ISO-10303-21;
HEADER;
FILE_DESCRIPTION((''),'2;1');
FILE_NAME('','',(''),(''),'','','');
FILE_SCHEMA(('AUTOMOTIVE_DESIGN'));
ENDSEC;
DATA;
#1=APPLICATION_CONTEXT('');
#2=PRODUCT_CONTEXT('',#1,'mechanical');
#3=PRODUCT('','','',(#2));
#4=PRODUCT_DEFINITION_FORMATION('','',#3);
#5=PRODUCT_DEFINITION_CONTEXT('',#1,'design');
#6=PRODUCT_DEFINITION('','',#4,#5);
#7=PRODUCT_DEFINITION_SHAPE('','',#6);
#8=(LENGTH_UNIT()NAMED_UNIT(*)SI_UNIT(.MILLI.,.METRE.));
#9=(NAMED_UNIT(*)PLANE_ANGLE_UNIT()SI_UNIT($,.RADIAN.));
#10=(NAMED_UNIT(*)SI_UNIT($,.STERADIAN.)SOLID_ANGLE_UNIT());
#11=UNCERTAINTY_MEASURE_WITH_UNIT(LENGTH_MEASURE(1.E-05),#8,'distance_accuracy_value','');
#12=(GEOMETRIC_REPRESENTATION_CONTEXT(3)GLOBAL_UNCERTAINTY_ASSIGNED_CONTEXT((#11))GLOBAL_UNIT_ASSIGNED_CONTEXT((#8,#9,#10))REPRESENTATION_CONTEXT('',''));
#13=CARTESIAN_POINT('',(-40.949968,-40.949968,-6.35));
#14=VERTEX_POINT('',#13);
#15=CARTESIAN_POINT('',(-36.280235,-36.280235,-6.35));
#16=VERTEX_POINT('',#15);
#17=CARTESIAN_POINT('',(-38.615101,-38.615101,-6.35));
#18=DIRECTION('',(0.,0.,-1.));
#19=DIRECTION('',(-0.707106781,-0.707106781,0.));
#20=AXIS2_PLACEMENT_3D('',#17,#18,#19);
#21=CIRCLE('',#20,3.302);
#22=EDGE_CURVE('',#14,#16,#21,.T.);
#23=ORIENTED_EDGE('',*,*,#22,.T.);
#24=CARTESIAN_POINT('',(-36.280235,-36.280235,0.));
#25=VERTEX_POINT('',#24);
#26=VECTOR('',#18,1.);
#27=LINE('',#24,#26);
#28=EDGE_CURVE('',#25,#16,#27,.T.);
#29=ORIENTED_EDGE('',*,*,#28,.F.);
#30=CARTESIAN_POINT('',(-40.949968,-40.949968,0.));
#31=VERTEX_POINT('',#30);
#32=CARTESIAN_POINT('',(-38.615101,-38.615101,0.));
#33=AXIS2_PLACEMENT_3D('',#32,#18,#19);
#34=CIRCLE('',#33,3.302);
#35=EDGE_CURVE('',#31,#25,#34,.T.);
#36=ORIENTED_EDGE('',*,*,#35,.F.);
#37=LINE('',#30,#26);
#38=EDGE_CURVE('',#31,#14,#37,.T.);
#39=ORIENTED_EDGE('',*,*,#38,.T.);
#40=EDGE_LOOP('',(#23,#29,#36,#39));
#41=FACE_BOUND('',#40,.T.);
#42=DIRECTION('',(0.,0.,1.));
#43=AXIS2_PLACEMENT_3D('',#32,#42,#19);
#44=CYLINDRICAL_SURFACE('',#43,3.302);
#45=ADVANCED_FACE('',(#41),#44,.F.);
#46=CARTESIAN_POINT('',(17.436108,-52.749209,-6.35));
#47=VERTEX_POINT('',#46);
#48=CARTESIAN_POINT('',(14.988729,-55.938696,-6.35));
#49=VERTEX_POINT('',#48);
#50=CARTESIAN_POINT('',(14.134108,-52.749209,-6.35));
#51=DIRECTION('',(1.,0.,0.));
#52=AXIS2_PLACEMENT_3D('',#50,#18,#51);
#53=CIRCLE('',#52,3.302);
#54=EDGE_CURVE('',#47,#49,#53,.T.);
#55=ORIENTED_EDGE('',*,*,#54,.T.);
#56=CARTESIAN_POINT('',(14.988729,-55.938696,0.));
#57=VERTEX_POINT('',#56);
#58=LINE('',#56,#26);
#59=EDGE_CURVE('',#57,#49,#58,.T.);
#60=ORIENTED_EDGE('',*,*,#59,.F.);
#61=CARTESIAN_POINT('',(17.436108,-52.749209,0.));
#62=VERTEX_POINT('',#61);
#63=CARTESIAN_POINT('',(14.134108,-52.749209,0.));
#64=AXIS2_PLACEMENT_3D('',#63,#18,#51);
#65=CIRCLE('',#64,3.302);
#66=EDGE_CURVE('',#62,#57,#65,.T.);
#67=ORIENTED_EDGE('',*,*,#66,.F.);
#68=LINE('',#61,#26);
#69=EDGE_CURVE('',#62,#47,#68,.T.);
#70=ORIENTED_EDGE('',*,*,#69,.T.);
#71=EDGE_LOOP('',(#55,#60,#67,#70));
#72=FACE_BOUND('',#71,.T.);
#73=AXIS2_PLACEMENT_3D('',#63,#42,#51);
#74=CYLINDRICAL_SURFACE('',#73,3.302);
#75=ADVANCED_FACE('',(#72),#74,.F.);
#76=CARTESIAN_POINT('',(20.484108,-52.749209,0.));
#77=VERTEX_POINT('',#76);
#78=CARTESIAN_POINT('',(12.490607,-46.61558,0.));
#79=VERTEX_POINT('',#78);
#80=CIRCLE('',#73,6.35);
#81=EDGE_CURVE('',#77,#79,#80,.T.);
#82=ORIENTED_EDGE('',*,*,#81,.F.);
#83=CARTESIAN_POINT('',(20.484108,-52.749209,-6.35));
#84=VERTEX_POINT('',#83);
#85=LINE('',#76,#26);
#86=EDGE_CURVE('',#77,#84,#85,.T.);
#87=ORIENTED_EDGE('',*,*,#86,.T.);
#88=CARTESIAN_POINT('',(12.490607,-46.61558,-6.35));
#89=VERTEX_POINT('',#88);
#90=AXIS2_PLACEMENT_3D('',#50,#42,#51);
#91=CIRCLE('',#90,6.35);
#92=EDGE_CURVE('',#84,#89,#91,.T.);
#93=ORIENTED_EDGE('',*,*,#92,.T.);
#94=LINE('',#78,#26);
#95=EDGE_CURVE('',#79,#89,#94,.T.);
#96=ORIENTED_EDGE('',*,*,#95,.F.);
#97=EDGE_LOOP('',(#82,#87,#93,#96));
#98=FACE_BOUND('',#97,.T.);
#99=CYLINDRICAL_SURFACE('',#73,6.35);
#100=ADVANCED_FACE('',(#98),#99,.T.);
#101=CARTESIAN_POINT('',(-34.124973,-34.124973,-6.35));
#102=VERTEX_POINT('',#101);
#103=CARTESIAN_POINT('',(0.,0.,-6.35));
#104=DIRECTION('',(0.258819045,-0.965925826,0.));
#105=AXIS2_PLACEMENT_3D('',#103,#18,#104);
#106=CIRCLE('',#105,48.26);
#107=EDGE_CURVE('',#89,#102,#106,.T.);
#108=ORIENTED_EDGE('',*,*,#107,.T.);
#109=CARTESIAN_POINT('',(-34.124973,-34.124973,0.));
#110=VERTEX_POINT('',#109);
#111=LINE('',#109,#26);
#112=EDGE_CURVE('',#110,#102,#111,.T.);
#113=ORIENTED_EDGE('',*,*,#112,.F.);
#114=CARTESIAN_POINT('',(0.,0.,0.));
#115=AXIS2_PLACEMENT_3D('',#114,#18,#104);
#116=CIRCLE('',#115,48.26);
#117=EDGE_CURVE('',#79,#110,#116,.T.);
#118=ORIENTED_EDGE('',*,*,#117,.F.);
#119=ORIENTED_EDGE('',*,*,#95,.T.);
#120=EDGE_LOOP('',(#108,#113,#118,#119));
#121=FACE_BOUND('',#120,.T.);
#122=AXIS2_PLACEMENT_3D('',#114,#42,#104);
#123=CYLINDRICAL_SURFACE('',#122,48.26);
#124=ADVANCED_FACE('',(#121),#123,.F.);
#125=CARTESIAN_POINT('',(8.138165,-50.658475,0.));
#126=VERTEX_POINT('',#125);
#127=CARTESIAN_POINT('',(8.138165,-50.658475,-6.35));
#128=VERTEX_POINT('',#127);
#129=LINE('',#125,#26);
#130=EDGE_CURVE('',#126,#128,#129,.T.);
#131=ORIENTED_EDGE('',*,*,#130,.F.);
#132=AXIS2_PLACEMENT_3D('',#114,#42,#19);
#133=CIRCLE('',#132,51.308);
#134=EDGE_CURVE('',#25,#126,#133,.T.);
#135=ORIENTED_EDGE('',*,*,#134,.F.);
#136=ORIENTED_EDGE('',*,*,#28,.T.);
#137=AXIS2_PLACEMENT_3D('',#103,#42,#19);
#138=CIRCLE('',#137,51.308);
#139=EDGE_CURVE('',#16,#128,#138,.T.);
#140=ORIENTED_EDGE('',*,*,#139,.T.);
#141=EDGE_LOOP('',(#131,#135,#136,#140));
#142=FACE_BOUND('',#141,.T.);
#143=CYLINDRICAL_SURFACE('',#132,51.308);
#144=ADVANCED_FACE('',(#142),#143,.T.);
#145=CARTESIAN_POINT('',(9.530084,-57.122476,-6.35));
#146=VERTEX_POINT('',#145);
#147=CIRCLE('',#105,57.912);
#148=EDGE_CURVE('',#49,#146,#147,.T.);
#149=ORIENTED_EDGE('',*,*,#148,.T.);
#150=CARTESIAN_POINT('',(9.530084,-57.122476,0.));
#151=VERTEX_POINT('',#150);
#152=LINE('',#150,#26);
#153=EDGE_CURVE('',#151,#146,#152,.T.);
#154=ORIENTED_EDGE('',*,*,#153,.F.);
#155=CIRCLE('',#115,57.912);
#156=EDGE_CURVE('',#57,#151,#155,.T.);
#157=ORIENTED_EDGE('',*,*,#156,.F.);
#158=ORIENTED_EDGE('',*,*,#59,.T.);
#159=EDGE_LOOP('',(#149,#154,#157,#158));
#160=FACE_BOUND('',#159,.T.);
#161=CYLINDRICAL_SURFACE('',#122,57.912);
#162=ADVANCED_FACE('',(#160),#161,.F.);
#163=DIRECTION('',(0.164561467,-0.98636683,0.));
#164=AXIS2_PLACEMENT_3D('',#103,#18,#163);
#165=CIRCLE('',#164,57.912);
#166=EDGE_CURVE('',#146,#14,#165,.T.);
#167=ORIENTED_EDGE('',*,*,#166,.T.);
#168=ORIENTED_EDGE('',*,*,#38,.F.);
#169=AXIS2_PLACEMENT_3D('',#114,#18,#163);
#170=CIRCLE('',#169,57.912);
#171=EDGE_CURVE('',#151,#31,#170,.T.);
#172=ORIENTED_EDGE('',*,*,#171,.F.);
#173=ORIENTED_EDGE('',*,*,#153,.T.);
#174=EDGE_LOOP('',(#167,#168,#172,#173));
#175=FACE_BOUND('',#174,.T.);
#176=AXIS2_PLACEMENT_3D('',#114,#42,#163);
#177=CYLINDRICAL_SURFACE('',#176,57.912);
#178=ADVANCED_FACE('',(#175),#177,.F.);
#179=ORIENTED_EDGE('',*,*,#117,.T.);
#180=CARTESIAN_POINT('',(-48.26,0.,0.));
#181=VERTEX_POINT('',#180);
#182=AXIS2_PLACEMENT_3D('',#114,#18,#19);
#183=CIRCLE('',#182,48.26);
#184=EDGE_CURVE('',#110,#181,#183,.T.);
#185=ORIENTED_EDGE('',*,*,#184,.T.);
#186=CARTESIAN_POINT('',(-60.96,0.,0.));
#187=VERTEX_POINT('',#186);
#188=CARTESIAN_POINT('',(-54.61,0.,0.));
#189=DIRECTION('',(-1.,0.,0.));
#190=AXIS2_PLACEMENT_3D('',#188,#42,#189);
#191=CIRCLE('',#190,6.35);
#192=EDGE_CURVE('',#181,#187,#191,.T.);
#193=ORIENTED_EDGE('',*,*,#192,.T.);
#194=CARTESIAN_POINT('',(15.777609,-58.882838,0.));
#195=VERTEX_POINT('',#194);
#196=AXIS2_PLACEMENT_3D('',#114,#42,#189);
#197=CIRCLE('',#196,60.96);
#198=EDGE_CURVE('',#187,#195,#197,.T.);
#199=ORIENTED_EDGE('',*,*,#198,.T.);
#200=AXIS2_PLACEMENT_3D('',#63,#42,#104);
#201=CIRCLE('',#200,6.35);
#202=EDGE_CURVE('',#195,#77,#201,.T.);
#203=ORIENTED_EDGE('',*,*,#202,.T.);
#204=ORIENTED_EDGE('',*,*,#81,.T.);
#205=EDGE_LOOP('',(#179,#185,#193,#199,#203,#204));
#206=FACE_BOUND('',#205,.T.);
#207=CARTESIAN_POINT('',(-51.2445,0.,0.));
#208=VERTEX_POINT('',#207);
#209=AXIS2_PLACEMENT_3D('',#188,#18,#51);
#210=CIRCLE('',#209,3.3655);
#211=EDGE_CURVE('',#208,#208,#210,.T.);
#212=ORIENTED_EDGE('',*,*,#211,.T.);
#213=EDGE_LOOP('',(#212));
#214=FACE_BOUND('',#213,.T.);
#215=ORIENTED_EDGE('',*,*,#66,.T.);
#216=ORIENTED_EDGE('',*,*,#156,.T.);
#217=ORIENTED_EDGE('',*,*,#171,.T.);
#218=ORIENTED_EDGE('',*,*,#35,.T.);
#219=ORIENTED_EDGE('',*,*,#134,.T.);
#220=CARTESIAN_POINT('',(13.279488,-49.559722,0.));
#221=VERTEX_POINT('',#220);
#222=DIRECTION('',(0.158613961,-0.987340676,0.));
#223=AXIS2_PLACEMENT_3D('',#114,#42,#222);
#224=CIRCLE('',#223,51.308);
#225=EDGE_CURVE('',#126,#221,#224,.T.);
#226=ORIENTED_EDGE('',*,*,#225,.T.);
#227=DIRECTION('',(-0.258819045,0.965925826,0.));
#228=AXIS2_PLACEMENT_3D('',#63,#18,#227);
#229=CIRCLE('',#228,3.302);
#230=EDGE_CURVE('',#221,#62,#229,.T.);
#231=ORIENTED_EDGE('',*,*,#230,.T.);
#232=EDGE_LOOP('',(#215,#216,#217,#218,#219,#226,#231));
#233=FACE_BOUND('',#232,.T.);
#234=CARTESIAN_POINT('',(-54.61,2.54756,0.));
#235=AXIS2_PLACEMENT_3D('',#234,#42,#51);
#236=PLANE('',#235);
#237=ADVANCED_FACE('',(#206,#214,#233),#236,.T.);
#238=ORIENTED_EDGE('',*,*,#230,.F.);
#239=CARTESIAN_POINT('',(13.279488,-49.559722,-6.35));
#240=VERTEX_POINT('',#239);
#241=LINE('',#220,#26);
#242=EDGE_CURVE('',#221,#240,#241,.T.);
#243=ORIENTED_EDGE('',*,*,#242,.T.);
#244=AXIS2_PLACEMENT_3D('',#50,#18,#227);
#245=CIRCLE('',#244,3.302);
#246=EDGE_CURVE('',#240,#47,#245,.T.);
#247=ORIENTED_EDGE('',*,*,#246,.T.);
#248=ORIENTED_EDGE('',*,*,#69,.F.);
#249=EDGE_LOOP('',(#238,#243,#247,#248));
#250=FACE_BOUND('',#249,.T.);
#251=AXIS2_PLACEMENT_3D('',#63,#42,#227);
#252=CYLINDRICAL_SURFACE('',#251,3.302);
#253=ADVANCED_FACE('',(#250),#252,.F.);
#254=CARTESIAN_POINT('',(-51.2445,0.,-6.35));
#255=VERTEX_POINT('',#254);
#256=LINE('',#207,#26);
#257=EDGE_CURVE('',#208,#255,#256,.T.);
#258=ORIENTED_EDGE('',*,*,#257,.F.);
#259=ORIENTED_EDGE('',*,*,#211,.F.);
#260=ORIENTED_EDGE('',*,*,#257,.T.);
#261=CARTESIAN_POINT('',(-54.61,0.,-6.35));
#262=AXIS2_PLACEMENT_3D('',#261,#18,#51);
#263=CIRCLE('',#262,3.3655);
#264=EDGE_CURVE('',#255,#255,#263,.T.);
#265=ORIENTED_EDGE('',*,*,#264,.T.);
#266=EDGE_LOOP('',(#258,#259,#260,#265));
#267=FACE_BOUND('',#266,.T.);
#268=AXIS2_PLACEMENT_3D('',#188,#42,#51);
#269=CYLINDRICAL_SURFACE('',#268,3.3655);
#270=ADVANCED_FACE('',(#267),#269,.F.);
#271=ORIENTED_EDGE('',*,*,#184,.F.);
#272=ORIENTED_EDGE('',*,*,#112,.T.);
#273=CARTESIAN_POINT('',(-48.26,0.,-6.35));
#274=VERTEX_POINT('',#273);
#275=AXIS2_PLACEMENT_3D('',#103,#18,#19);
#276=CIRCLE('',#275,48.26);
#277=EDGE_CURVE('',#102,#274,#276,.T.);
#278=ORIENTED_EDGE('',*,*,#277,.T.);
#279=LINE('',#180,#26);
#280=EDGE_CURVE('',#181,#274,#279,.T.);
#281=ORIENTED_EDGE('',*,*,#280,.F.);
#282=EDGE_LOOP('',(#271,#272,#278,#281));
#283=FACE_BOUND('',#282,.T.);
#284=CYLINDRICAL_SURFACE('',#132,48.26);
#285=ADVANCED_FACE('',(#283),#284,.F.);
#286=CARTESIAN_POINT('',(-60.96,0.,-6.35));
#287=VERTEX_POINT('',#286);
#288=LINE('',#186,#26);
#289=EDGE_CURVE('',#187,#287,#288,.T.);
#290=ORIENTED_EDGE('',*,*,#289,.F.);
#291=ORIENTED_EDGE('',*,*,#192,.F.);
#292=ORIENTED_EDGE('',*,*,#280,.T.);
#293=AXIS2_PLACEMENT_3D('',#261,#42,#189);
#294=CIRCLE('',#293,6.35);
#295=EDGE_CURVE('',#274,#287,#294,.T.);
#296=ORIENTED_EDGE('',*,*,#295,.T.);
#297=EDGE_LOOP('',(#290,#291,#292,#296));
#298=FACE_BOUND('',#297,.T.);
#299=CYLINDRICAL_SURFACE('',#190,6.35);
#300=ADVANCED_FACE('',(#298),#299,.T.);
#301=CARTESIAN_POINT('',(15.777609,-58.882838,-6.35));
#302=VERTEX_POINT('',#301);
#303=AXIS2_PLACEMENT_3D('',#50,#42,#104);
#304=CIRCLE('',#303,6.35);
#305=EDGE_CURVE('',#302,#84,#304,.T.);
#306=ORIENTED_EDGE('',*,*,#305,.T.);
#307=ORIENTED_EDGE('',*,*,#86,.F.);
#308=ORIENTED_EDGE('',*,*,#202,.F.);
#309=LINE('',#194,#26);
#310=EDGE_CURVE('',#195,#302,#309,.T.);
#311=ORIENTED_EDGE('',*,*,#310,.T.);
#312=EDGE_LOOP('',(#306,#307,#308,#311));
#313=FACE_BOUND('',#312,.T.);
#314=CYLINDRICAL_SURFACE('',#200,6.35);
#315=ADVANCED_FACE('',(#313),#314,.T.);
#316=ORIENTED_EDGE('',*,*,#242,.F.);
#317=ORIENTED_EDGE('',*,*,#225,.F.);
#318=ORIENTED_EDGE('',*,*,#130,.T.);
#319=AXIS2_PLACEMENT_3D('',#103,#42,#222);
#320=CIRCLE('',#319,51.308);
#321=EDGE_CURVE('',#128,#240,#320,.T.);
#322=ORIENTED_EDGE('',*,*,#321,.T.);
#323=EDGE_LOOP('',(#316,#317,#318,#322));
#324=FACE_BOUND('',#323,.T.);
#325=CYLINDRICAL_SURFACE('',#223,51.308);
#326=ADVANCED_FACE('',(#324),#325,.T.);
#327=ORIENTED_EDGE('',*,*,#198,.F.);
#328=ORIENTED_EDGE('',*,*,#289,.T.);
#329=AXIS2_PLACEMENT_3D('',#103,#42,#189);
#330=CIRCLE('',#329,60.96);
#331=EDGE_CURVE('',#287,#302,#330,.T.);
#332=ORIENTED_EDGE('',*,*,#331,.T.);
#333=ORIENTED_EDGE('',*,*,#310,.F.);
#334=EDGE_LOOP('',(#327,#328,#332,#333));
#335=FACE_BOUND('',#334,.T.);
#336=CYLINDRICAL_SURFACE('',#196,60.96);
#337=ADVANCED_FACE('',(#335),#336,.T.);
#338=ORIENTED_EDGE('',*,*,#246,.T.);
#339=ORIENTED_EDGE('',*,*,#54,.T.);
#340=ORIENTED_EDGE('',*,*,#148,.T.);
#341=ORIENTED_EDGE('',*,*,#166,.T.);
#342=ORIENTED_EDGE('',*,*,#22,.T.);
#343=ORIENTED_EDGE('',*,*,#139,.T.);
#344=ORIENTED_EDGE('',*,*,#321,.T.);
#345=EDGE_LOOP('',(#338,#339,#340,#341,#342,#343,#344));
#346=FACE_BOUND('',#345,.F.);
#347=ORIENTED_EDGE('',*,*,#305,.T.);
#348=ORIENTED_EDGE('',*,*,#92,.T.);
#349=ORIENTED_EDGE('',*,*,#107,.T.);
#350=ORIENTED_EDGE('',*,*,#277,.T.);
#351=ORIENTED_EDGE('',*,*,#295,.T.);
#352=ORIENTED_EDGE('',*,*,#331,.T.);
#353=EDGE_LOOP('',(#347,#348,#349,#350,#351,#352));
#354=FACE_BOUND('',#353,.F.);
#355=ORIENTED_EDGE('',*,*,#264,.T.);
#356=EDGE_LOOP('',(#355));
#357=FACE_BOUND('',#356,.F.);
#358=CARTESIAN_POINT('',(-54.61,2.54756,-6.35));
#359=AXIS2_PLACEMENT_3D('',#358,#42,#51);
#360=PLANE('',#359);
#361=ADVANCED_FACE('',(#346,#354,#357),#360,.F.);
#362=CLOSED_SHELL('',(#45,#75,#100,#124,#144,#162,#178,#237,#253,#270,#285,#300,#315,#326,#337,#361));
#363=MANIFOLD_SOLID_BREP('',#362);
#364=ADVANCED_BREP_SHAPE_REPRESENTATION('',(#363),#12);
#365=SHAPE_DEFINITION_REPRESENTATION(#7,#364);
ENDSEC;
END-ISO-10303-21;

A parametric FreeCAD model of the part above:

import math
import FreeCAD as App
import Part
import Sketcher

V = App.Vector
Q = App.Units.Quantity

doc = App.newDocument("Part")
body = doc.addObject("PartDesign::Body", "Body")

# Sketch on XY plane
sketch1 = body.newObject("Sketcher::SketchObject", "Sketch")
sketch1.AttachmentSupport = (doc.getObject("XY_Plane"), [""])
sketch1.MapMode = "FlatFace"
sketch1.addGeometry([
    Part.ArcOfCircle(Part.Circle(V(0, 0, 0), V(0, 0, 1), 61), math.radians(180), math.radians(285)),  # 0
    Part.ArcOfCircle(Part.Circle(V(14.1, -52.7, 0), V(0, 0, 1), 6.3), math.radians(-75), math.radians(0)),  # 1
    Part.ArcOfCircle(Part.Circle(V(14.1, -52.7, 0), V(0, 0, 1), 6.3), math.radians(0), math.radians(105)),  # 2
    Part.ArcOfCircle(Part.Circle(V(0, 0, 0), V(0, 0, 1), 48.3), math.radians(-135), math.radians(-75)),  # 3
    Part.ArcOfCircle(Part.Circle(V(0, 0, 0), V(0, 0, 1), 48.3), math.radians(180), math.radians(225)),  # 4
    Part.ArcOfCircle(Part.Circle(V(-54.6, 0, 0), V(0, 0, 1), 6.3), math.radians(0), math.radians(180)),  # 5
    Part.ArcOfCircle(Part.Circle(V(14.1, -52.7, 0), V(0, 0, 1), 3.3), math.radians(-75), math.radians(0)),  # 6
    Part.ArcOfCircle(Part.Circle(V(0, 0, 0), V(0, 0, 1), 57.9), math.radians(-80.53), math.radians(-75)),  # 7
    Part.ArcOfCircle(Part.Circle(V(0, 0, 0), V(0, 0, 1), 57.9), math.radians(-135), math.radians(-81)),  # 8
    Part.ArcOfCircle(Part.Circle(V(-38.6, -38.6, 0), V(0, 0, 1), 3.3), math.radians(45), math.radians(225)),  # 9
    Part.ArcOfCircle(Part.Circle(V(0, 0, 0), V(0, 0, 1), 51.3), math.radians(-135), math.radians(-81)),  # 10
    Part.ArcOfCircle(Part.Circle(V(0, 0, 0), V(0, 0, 1), 51.3), math.radians(-80.87), math.radians(-75)),  # 11
    Part.ArcOfCircle(Part.Circle(V(14.1, -52.7, 0), V(0, 0, 1), 3.3), math.radians(0), math.radians(105)),  # 12
    Part.Circle(V(-54.6, 0, 0), V(0, 0, 1), 3.4),  # 13
], False)
sketch1.addConstraint([
    Sketcher.Constraint("Tangent", 0, 2, 1, 1),
    Sketcher.Constraint("Tangent", 1, 2, 2, 1),
    Sketcher.Constraint("Tangent", 2, 2, 3, 2),
    Sketcher.Constraint("Tangent", 3, 1, 4, 2),
    Sketcher.Constraint("Tangent", 4, 1, 5, 1),
    Sketcher.Constraint("Tangent", 5, 2, 0, 1),
    Sketcher.Constraint("Tangent", 6, 1, 7, 2),
    Sketcher.Constraint("Tangent", 7, 1, 8, 2),
    Sketcher.Constraint("Tangent", 8, 1, 9, 2),
    Sketcher.Constraint("Tangent", 9, 1, 10, 1),
    Sketcher.Constraint("Tangent", 10, 2, 11, 1),
    Sketcher.Constraint("Tangent", 11, 2, 12, 2),
    Sketcher.Constraint("Tangent", 12, 1, 6, 2),
    Sketcher.Constraint("Coincident", 0, 3, -1, 1),
    Sketcher.Constraint("Coincident", 3, 3, -1, 1),
    Sketcher.Constraint("Coincident", 7, 3, -1, 1),
    Sketcher.Constraint("Coincident", 10, 3, -1, 1),
    Sketcher.Constraint("Coincident", 6, 3, 1, 3),
    Sketcher.Constraint("Coincident", 13, 3, 5, 3),
    Sketcher.Constraint("Equal", 1, 2),
    Sketcher.Constraint("Equal", 3, 4),
    Sketcher.Constraint("Equal", 7, 8),
    Sketcher.Constraint("Equal", 6, 9),
    Sketcher.Constraint("Equal", 10, 11),
    Sketcher.Constraint("PointOnObject", 5, 3, -1),
    Sketcher.Constraint("Horizontal", 12, 3, 1, 2),
    Sketcher.Constraint("Horizontal", 1, 2, 12, 1),
    Sketcher.Constraint("Radius", 0, Q("2.4 in")),
    Sketcher.Constraint("Radius", 3, Q("1.9 in")),
    Sketcher.Constraint("Radius", 6, Q("0.13 in")),
    Sketcher.Constraint("Diameter", 13, Q("0.265 in")),
    Sketcher.Constraint("DistanceX", -1, 1, 7, 1, Q("0.3752001 in")),
    Sketcher.Constraint("DistanceX", 9, 3, -1, 1, Q("38.615101 mm")),
    Sketcher.Constraint("DistanceX", 2, 2, 1, 3, Q("1.643501 mm")),
    Sketcher.Constraint("DistanceX", 9, 3, 3, 1, Q("4.490128 mm")),
    Sketcher.Constraint("DistanceX", 10, 2, 2, 2, Q("4.352442 mm")),
])
pad1 = body.newObject("PartDesign::Pad", "Pad")
pad1.Profile = sketch1
pad1.Length = Q("0.25 in")
pad1.Reversed = True

doc.recompute()
